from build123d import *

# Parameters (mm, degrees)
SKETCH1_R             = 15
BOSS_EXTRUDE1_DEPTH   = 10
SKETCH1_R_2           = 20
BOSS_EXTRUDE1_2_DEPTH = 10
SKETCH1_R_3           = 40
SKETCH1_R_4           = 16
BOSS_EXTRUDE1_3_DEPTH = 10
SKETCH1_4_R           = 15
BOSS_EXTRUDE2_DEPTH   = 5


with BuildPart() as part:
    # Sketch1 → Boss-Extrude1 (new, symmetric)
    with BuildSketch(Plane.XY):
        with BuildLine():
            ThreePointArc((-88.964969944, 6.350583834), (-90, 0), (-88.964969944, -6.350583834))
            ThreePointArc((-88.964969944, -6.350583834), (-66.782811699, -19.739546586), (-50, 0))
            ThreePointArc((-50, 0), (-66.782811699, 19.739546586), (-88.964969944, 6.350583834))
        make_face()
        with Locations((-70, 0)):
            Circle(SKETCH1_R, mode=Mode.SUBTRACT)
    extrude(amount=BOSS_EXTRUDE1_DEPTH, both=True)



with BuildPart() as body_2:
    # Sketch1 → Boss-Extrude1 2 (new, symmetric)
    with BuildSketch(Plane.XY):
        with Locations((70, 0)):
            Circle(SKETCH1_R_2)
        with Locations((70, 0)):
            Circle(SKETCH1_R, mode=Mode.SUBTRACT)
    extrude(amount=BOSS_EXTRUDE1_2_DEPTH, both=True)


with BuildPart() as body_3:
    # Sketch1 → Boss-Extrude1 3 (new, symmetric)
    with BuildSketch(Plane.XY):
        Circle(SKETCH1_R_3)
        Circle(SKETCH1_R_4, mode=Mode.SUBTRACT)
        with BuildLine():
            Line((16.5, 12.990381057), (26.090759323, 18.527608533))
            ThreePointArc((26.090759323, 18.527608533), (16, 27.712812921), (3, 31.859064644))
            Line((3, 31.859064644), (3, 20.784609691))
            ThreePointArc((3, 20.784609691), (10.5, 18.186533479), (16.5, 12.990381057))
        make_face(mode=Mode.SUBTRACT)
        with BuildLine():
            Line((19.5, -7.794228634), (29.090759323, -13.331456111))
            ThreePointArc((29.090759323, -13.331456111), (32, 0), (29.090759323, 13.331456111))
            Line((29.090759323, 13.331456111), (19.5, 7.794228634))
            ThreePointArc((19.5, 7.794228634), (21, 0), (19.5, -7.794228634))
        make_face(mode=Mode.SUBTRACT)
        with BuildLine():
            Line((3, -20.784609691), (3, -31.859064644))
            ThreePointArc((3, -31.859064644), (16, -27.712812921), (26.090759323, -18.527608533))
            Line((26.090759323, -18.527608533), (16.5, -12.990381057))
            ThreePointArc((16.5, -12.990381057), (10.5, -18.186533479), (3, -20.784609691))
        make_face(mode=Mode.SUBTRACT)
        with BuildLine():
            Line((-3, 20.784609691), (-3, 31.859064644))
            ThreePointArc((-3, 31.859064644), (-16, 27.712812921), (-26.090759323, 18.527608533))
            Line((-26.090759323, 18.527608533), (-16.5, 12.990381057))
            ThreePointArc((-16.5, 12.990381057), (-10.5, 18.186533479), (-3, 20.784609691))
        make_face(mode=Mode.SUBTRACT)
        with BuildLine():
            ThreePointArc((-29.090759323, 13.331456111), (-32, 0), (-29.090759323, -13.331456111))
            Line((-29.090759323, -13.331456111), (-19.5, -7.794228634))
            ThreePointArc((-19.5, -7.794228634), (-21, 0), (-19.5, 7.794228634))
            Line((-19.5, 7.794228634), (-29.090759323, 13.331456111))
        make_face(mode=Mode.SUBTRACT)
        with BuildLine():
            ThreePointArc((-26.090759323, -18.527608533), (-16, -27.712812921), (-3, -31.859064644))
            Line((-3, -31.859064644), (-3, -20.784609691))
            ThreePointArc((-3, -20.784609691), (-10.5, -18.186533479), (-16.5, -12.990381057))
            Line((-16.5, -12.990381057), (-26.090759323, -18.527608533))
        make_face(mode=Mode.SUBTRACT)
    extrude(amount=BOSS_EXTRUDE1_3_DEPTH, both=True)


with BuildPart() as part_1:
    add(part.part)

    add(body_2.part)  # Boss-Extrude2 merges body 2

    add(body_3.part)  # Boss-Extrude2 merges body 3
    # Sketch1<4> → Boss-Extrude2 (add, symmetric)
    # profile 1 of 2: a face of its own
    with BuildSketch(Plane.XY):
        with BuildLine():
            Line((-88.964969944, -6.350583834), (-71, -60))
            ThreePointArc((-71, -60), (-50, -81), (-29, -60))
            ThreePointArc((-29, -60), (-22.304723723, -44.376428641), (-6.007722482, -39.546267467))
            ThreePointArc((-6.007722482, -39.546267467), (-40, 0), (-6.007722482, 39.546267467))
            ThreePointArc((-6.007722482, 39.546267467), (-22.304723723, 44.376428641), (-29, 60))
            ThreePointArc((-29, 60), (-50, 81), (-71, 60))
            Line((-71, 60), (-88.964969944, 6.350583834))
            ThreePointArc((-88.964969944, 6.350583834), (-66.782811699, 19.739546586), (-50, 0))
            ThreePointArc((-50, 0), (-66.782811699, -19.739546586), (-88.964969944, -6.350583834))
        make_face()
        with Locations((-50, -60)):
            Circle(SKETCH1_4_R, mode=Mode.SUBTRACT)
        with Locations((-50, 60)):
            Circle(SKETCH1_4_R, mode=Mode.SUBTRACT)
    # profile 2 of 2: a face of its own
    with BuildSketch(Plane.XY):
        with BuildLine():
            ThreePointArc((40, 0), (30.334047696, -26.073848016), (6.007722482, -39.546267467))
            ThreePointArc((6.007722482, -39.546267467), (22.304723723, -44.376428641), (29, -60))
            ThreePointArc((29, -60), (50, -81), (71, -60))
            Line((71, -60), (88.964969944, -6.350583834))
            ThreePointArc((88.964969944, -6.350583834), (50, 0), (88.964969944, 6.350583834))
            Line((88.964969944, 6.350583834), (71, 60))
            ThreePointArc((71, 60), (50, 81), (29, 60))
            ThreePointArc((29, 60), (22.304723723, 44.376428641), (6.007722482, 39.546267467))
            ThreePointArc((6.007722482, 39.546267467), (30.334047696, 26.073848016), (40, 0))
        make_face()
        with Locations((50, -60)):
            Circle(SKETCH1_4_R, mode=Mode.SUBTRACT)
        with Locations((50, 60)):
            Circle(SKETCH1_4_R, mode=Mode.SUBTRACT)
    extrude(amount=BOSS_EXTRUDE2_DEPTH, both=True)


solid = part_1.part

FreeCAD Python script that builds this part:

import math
import FreeCAD as App
import Part
import Sketcher
Q = App.Units.Quantity

doc = App.newDocument("Part")
params = doc.addObject("Spreadsheet::Sheet", "Params")
for row, (alias, value) in enumerate([
    ("sketch1_diameter", "30 mm"),
    ("sketch1_radius", "20 mm"),
    ("pad1_length", "20 mm"),
    ("sketch2_diameter", "40 mm"),
    ("sketch2_diameter2", "30 mm"),
    ("pad2_length", "20 mm"),
    ("sketch3_diameter", "80 mm"),
    ("sketch3_diameter2", "32 mm"),
    ("sketch3_radius", "32 mm"),
    ("sketch3_radius2", "21 mm"),
    ("pad3_length", "20 mm"),
    ("sketch4_diameter", "30 mm"),
    ("sketch4_radius", "21 mm"),
    ("sketch4_radius2", "20 mm"),
    ("sketch4_radius3", "40 mm"),
    ("pad4_length", "10 mm"),
], start=1):
    params.set(f"A{row}", alias)
    params.set(f"B{row}", "=" + value)
    params.setAlias(f"B{row}", alias)

body = doc.addObject("PartDesign::Body", "Body")

# Sketch on XY plane
sketch1 = body.newObject("Sketcher::SketchObject", "Sketch")
sketch1.AttachmentSupport = (doc.getObject("XY_Plane"), [""])
sketch1.MapMode = "FlatFace"
sketch1.addGeometry(Part.ArcOfCircle(Part.Circle(App.Vector(-70, 0, 0), App.Vector(0, 0, 1), 20), math.radians(161.486434), math.radians(198.513566)), False)
sketch1.addGeometry(Part.ArcOfCircle(Part.Circle(App.Vector(-70, 0, 0), App.Vector(0, 0, 1), 20), math.radians(-161.486433), math.radians(0)), False)
sketch1.addGeometry(Part.ArcOfCircle(Part.Circle(App.Vector(-70, 0, 0), App.Vector(0, 0, 1), 20), math.radians(0), math.radians(161.486433)), False)
sketch1.addGeometry(Part.Circle(App.Vector(-70, 0, 0), App.Vector(0, 0, 1), 15), False)
sketch1.addConstraint(Sketcher.Constraint("Tangent", 0, 2, 1, 1))
sketch1.addConstraint(Sketcher.Constraint("Tangent", 1, 2, 2, 1))
sketch1.addConstraint(Sketcher.Constraint("Tangent", 2, 2, 0, 1))
sketch1.addConstraint(Sketcher.Constraint("Coincident", 3, 3, 0, 3))
sketch1.addConstraint(Sketcher.Constraint("Symmetric", 0, 2, 2, 2, -1))
sketch1.addConstraint(Sketcher.Constraint("PointOnObject", 1, 2, -1))
sketch1.addConstraint(Sketcher.Constraint("Diameter", 3, 30.0))
sketch1.addConstraint(Sketcher.Constraint("Radius", 0, 20.0))
sketch1.addConstraint(Sketcher.Constraint("DistanceX", 0, 3, -1, 1, 70.0))
sketch1.addConstraint(Sketcher.Constraint("DistanceX", 0, 2, -1, 1, 88.96497))
sketch1.setExpression("Constraints[6]", "Params.sketch1_diameter")
sketch1.setExpression("Constraints[7]", "Params.sketch1_radius")
pad1 = body.newObject("PartDesign::Pad", "Pad")
pad1.Profile = sketch1
pad1.setExpression("Length", "Params.pad1_length")
pad1.Midplane = True
body2 = doc.addObject("PartDesign::Body", "Body001")

# Sketch on XY plane
sketch2 = body2.newObject("Sketcher::SketchObject", "Sketch001")
sketch2.AttachmentSupport = (doc.getObject("XY_Plane001"), [""])
sketch2.MapMode = "FlatFace"
sketch2.addGeometry(Part.Circle(App.Vector(70, 0, 0), App.Vector(0, 0, 1), 20), False)
sketch2.addGeometry(Part.Circle(App.Vector(70, 0, 0), App.Vector(0, 0, 1), 15), False)
sketch2.addConstraint(Sketcher.Constraint("Coincident", 1, 3, 0, 3))
sketch2.addConstraint(Sketcher.Constraint("PointOnObject", 0, 3, -1))
sketch2.addConstraint(Sketcher.Constraint("Diameter", 0, 40.0))
sketch2.addConstraint(Sketcher.Constraint("Diameter", 1, 30.0))
sketch2.addConstraint(Sketcher.Constraint("DistanceX", -1, 1, 0, 3, 70.0))
sketch2.setExpression("Constraints[2]", "Params.sketch2_diameter")
sketch2.setExpression("Constraints[3]", "Params.sketch2_diameter2")
pad2 = body2.newObject("PartDesign::Pad", "Pad001")
pad2.Profile = sketch2
pad2.setExpression("Length", "Params.pad2_length")
pad2.Midplane = True
body3 = doc.addObject("PartDesign::Body", "Body002")

# Sketch on XY plane
sketch3 = body3.newObject("Sketcher::SketchObject", "Sketch002")
sketch3.AttachmentSupport = (doc.getObject("XY_Plane002"), [""])
sketch3.MapMode = "FlatFace"
sketch3.addGeometry(Part.Circle(App.Vector(0, 0, 0), App.Vector(0, 0, 1), 40), False)
sketch3.addGeometry(Part.ArcOfCircle(Part.Circle(App.Vector(0, 0, 0), App.Vector(0, 0, 1), 32), math.radians(-144.620621), math.radians(-95.379379)), False)
sketch3.addGeometry(Part.LineSegment(App.Vector(-26.090759, -18.527609, 0), App.Vector(-16.5, -12.990381, 0)), False)
sketch3.addGeometry(Part.ArcOfCircle(Part.Circle(App.Vector(0, 0, 0), App.Vector(0, 0, 1), 21), math.radians(-141.786789), math.radians(-98.213211)), False)
sketch3.addGeometry(Part.LineSegment(App.Vector(-3, -20.78461, 0), App.Vector(-3, -31.859065, 0)), False)
sketch3.addGeometry(Part.LineSegment(App.Vector(3, -31.859065, 0), App.Vector(3, -20.78461, 0)), False)
sketch3.addGeometry(Part.ArcOfCircle(Part.Circle(App.Vector(0, 0, 0), App.Vector(0, 0, 1), 21), math.radians(-81.786789), math.radians(-38.213211)), False)
sketch3.addGeometry(Part.LineSegment(App.Vector(16.5, -12.990381, 0), App.Vector(26.090759, -18.527609, 0)), False)
sketch3.addGeometry(Part.ArcOfCircle(Part.Circle(App.Vector(0, 0, 0), App.Vector(0, 0, 1), 32), math.radians(-84.620621), math.radians(-35.379379)), False)
sketch3.addGeometry(Part.ArcOfCircle(Part.Circle(App.Vector(0, 0, 0), App.Vector(0, 0, 1), 32), math.radians(155.379379), math.radians(204.620621)), False)
sketch3.addGeometry(Part.LineSegment(App.Vector(-29.090759, 13.331456, 0), App.Vector(-19.5, 7.794229, 0)), False)
sketch3.addGeometry(Part.ArcOfCircle(Part.Circle(App.Vector(0, 0, 0), App.Vector(0, 0, 1), 21), math.radians(158.213211), math.radians(201.786789)), False)
sketch3.addGeometry(Part.LineSegment(App.Vector(-19.5, -7.794229, 0), App.Vector(-29.090759, -13.331456, 0)), False)
sketch3.addGeometry(Part.LineSegment(App.Vector(-3, 31.859065, 0), App.Vector(-3, 20.78461, 0)), False)
sketch3.addGeometry(Part.ArcOfCircle(Part.Circle(App.Vector(0, 0, 0), App.Vector(0, 0, 1), 21), math.radians(98.213211), math.radians(141.786789)), False)
sketch3.addGeometry(Part.LineSegment(App.Vector(-16.5, 12.990381, 0), App.Vector(-26.090759, 18.527609, 0)), False)
sketch3.addGeometry(Part.ArcOfCircle(Part.Circle(App.Vector(0, 0, 0), App.Vector(0, 0, 1), 32), math.radians(95.379379), math.radians(144.620621)), False)
sketch3.addGeometry(Part.Circle(App.Vector(0, 0, 0), App.Vector(0, 0, 1), 16), False)
sketch3.addGeometry(Part.LineSegment(App.Vector(29.090759, -13.331456, 0), App.Vector(19.5, -7.794229, 0)), False)
sketch3.addGeometry(Part.ArcOfCircle(Part.Circle(App.Vector(0, 0, 0), App.Vector(0, 0, 1), 21), math.radians(-21.786789), math.radians(21.786789)), False)
sketch3.addGeometry(Part.LineSegment(App.Vector(19.5, 7.794229, 0), App.Vector(29.090759, 13.331456, 0)), False)
sketch3.addGeometry(Part.ArcOfCircle(Part.Circle(App.Vector(0, 0, 0), App.Vector(0, 0, 1), 32), math.radians(-24.620621), math.radians(24.620621)), False)
sketch3.addGeometry(Part.LineSegment(App.Vector(26.090759, 18.527609, 0), App.Vector(16.5, 12.990381, 0)), False)
sketch3.addGeometry(Part.ArcOfCircle(Part.Circle(App.Vector(0, 0, 0), App.Vector(0, 0, 1), 21), math.radians(38.213211), math.radians(81.786789)), False)
sketch3.addGeometry(Part.LineSegment(App.Vector(3, 20.78461, 0), App.Vector(3, 31.859065, 0)), False)
sketch3.addGeometry(Part.ArcOfCircle(Part.Circle(App.Vector(0, 0, 0), App.Vector(0, 0, 1), 32), math.radians(35.379379), math.radians(84.620621)), False)
sketch3.addConstraint(Sketcher.Constraint("Coincident", 1, 1, 2, 1))
sketch3.addConstraint(Sketcher.Constraint("Coincident", 2, 2, 3, 1))
sketch3.addConstraint(Sketcher.Constraint("Coincident", 3, 2, 4, 1))
sketch3.addConstraint(Sketcher.Constraint("Coincident", 4, 2, 1, 2))
sketch3.addConstraint(Sketcher.Constraint("Coincident", 5, 2, 6, 1))
sketch3.addConstraint(Sketcher.Constraint("Coincident", 6, 2, 7, 1))
sketch3.addConstraint(Sketcher.Constraint("Coincident", 7, 2, 8, 2))
sketch3.addConstraint(Sketcher.Constraint("Coincident", 8, 1, 5, 1))
sketch3.addConstraint(Sketcher.Constraint("Coincident", 9, 1, 10, 1))
sketch3.addConstraint(Sketcher.Constraint("Coincident", 10, 2, 11, 1))
sketch3.addConstraint(Sketcher.Constraint("Coincident", 11, 2, 12, 1))
sketch3.addConstraint(Sketcher.Constraint("Coincident", 12, 2, 9, 2))
sketch3.addConstraint(Sketcher.Constraint("Coincident", 13, 2, 14, 1))
sketch3.addConstraint(Sketcher.Constraint("Coincident", 14, 2, 15, 1))
sketch3.addConstraint(Sketcher.Constraint("Coincident", 15, 2, 16, 2))
sketch3.addConstraint(Sketcher.Constraint("Coincident", 16, 1, 13, 1))
sketch3.addConstraint(Sketcher.Constraint("Coincident", 18, 2, 19, 1))
sketch3.addConstraint(Sketcher.Constraint("Coincident", 19, 2, 20, 1))
sketch3.addConstraint(Sketcher.Constraint("Coincident", 20, 2, 21, 2))
sketch3.addConstraint(Sketcher.Constraint("Coincident", 21, 1, 18, 1))
sketch3.addConstraint(Sketcher.Constraint("Coincident", 22, 2, 23, 1))
sketch3.addConstraint(Sketcher.Constraint("Coincident", 23, 2, 24, 1))
sketch3.addConstraint(Sketcher.Constraint("Coincident", 24, 2, 25, 2))
sketch3.addConstraint(Sketcher.Constraint("Coincident", 25, 1, 22, 1))
sketch3.addConstraint(Sketcher.Constraint("Vertical", 4))
sketch3.addConstraint(Sketcher.Constraint("Vertical", 5))
sketch3.addConstraint(Sketcher.Constraint("Vertical", 13))
sketch3.addConstraint(Sketcher.Constraint("Vertical", 24))
sketch3.addConstraint(Sketcher.Constraint("Coincident", 0, 3, -1, 1))
sketch3.addConstraint(Sketcher.Constraint("Coincident", 1, 3, -1, 1))
sketch3.addConstraint(Sketcher.Constraint("Coincident", 3, 3, -1, 1))
sketch3.addConstraint(Sketcher.Constraint("Coincident", 6, 3, -1, 1))
sketch3.addConstraint(Sketcher.Constraint("Coincident", 8, 3, -1, 1))
sketch3.addConstraint(Sketcher.Constraint("Coincident", 9, 3, -1, 1))
sketch3.addConstraint(Sketcher.Constraint("Coincident", 11, 3, -1, 1))
sketch3.addConstraint(Sketcher.Constraint("Coincident", 14, 3, -1, 1))
sketch3.addConstraint(Sketcher.Constraint("Coincident", 16, 3, -1, 1))
sketch3.addConstraint(Sketcher.Constraint("Coincident", 17, 3, -1, 1))
sketch3.addConstraint(Sketcher.Constraint("Coincident", 19, 3, -1, 1))
sketch3.addConstraint(Sketcher.Constraint("Coincident", 21, 3, -1, 1))
sketch3.addConstraint(Sketcher.Constraint("Coincident", 23, 3, -1, 1))
sketch3.addConstraint(Sketcher.Constraint("Coincident", 25, 3, -1, 1))
sketch3.addConstraint(Sketcher.Constraint("Equal", 3, 6))
sketch3.addConstraint(Sketcher.Constraint("Equal", 1, 8))
sketch3.addConstraint(Sketcher.Constraint("Equal", 8, 9))
sketch3.addConstraint(Sketcher.Constraint("Equal", 6, 11))
sketch3.addConstraint(Sketcher.Constraint("Equal", 11, 14))
sketch3.addConstraint(Sketcher.Constraint("Equal", 9, 16))
sketch3.addConstraint(Sketcher.Constraint("Equal", 14, 19))
sketch3.addConstraint(Sketcher.Constraint("Equal", 16, 21))
sketch3.addConstraint(Sketcher.Constraint("Equal", 19, 23))
sketch3.addConstraint(Sketcher.Constraint("Equal", 21, 25))
sketch3.addConstraint(Sketcher.Constraint("Parallel", 7, 10))
sketch3.addConstraint(Sketcher.Constraint("Parallel", 2, 12))
sketch3.addConstraint(Sketcher.Constraint("Parallel", 10, 15))
sketch3.addConstraint(Sketcher.Constraint("Parallel", 15, 18))
sketch3.addConstraint(Sketcher.Constraint("Parallel", 12, 20))
sketch3.addConstraint(Sketcher.Constraint("Parallel", 20, 22))
sketch3.addConstraint(Sketcher.Constraint("Horizontal", 3, 2, 5, 2))
sketch3.addConstraint(Sketcher.Constraint("Horizontal", 2, 2, 6, 2))
sketch3.addConstraint(Sketcher.Constraint("Horizontal", 1, 1, 7, 2))
sketch3.addConstraint(Sketcher.Constraint("Horizontal", 11, 2, 18, 2))
sketch3.addConstraint(Sketcher.Constraint("Horizontal", 10, 2, 19, 2))
sketch3.addConstraint(Sketcher.Constraint("Horizontal", 14, 2, 22, 2))
sketch3.addConstraint(Sketcher.Constraint("Horizontal", 13, 2, 23, 2))
sketch3.addConstraint(Sketcher.Constraint("Vertical", 10, 2, 11, 2))
sketch3.addConstraint(Sketcher.Constraint("Vertical", 4, 2, 13, 2))
sketch3.addConstraint(Sketcher.Constraint("Vertical", 2, 2, 14, 2))
sketch3.addConstraint(Sketcher.Constraint("Equal", 7, 10))
sketch3.addConstraint(Sketcher.Constraint("Diameter", 0, 80.0))
sketch3.addConstraint(Sketcher.Constraint("Diameter", 17, 32.0))
sketch3.addConstraint(Sketcher.Constraint("Radius", 1, 32.0))
sketch3.addConstraint(Sketcher.Constraint("Radius", 3, 21.0))
sketch3.addConstraint(Sketcher.Constraint("Angle", 2, Q("30 deg")))
sketch3.addConstraint(Sketcher.Constraint("DistanceX", 3, 2, -1, 1, 3.0))
sketch3.addConstraint(Sketcher.Constraint("DistanceX", 9, 1, 1, 1, 3.0))
sketch3.setExpression("Constraints[69]", "Params.sketch3_diameter")
sketch3.setExpression("Constraints[70]", "Params.sketch3_diameter2")
sketch3.setExpression("Constraints[71]", "Params.sketch3_radius")
sketch3.setExpression("Constraints[72]", "Params.sketch3_radius2")
pad3 = body3.newObject("PartDesign::Pad", "Pad002")
pad3.Profile = sketch3
pad3.setExpression("Length", "Params.pad3_length")
pad3.Midplane = True
body.AllowCompound = True
doc.recompute()

boolean = body.newObject("PartDesign::Boolean", "Boolean")
boolean.Type = "Fuse"
boolean.addObjects([body2])
doc.recompute()

boolean2 = body.newObject("PartDesign::Boolean", "Boolean001")
boolean2.Type = "Fuse"
boolean2.addObjects([body3])

# Sketch on XY plane
sketch4 = body.newObject("Sketcher::SketchObject", "Sketch003")
sketch4.AttachmentSupport = (doc.getObject("XY_Plane"), [""])
sketch4.MapMode = "FlatFace"
sketch4.addGeometry(Part.LineSegment(App.Vector(-88.96497, -6.350584, 0), App.Vector(-71, -60, 0)), False)
sketch4.addGeometry(Part.ArcOfCircle(Part.Circle(App.Vector(-50, -60, 0), App.Vector(0, 0, 1), 21), math.radians(180), math.radians(360)), False)
sketch4.addGeometry(Part.ArcOfCircle(Part.Circle(App.Vector(-9.011584, -59.319401, 0), App.Vector(0, 0, 1), 20), math.radians(81.361885), math.radians(181.950148)), False)
sketch4.addGeometry(Part.ArcOfCircle(Part.Circle(App.Vector(0, 0, 0), App.Vector(0, 0, 1), 40), math.radians(98.638115), math.radians(261.361885)), False)
sketch4.addGeometry(Part.ArcOfCircle(Part.Circle(App.Vector(-9.011584, 59.319401, 0), App.Vector(0, 0, 1), 20), math.radians(178.049852), math.radians(278.638115)), False)
sketch4.addGeometry(Part.ArcOfCircle(Part.Circle(App.Vector(-50, 60, 0), App.Vector(0, 0, 1), 21), math.radians(0), math.radians(180)), False)
sketch4.addGeometry(Part.LineSegment(App.Vector(-71, 60, 0), App.Vector(-88.96497, 6.350584, 0)), False)
sketch4.addGeometry(Part.ArcOfCircle(Part.Circle(App.Vector(-70, 0, 0), App.Vector(0, 0, 1), 20), math.radians(0), math.radians(161.486433)), False)
sketch4.addGeometry(Part.ArcOfCircle(Part.Circle(App.Vector(-70, 0, 0), App.Vector(0, 0, 1), 20), math.radians(-161.486433), math.radians(0)), False)
sketch4.addGeometry(Part.Circle(App.Vector(-50, -60, 0), App.Vector(0, 0, 1), 15), False)
sketch4.addGeometry(Part.Circle(App.Vector(-50, 60, 0), App.Vector(0, 0, 1), 15), False)
sketch4.addGeometry(Part.ArcOfCircle(Part.Circle(App.Vector(0, 0, 0), App.Vector(0, 0, 1), 40), math.radians(-81.361885), math.radians(0)), False)
sketch4.addGeometry(Part.ArcOfCircle(Part.Circle(App.Vector(9.011584, -59.319401, 0), App.Vector(0, 0, 1), 20), math.radians(-1.950148), math.radians(98.638115)), False)
sketch4.addGeometry(Part.ArcOfCircle(Part.Circle(App.Vector(50, -60, 0), App.Vector(0, 0, 1), 21), math.radians(180), math.radians(360)), False)
sketch4.addGeometry(Part.LineSegment(App.Vector(71, -60, 0), App.Vector(88.96497, -6.350584, 0)), False)
sketch4.addGeometry(Part.ArcOfCircle(Part.Circle(App.Vector(70, 0, 0), App.Vector(0, 0, 1), 20), math.radians(18.513567), math.radians(341.486433)), False)
sketch4.addGeometry(Part.LineSegment(App.Vector(88.96497, 6.350584, 0), App.Vector(71, 60, 0)), False)
sketch4.addGeometry(Part.ArcOfCircle(Part.Circle(App.Vector(50, 60, 0), App.Vector(0, 0, 1), 21), math.radians(0), math.radians(180)), False)
sketch4.addGeometry(Part.ArcOfCircle(Part.Circle(App.Vector(9.011584, 59.319401, 0), App.Vector(0, 0, 1), 20), math.radians(-98.638115), math.radians(1.950148)), False)
sketch4.addGeometry(Part.ArcOfCircle(Part.Circle(App.Vector(0, 0, 0), App.Vector(0, 0, 1), 40), math.radians(0), math.radians(81.361885)), False)
sketch4.addGeometry(Part.Circle(App.Vector(50, -60, 0), App.Vector(0, 0, 1), 15), False)
sketch4.addGeometry(Part.Circle(App.Vector(50, 60, 0), App.Vector(0, 0, 1), 15), False)
sketch4.addConstraint(Sketcher.Constraint("Coincident", 0, 2, 1, 1))
sketch4.addConstraint(Sketcher.Constraint("Coincident", 1, 2, 2, 2))
sketch4.addConstraint(Sketcher.Constraint("Tangent", 2, 1, 3, 2))
sketch4.addConstraint(Sketcher.Constraint("Tangent", 3, 1, 4, 2))
sketch4.addConstraint(Sketcher.Constraint("Coincident", 4, 1, 5, 1))
sketch4.addConstraint(Sketcher.Constraint("Coincident", 5, 2, 6, 1))
sketch4.addConstraint(Sketcher.Constraint("Tangent", 6, 2, 7, 2))
sketch4.addConstraint(Sketcher.Constraint("Tangent", 7, 1, 8, 2))
sketch4.addConstraint(Sketcher.Constraint("Tangent", 8, 1, 0, 1))
sketch4.addConstraint(Sketcher.Constraint("Tangent", 11, 1, 12, 2))
sketch4.addConstraint(Sketcher.Constraint("Coincident", 12, 1, 13, 1))
sketch4.addConstraint(Sketcher.Constraint("Coincident", 13, 2, 14, 1))
sketch4.addConstraint(Sketcher.Constraint("Tangent", 14, 2, 15, 2))
sketch4.addConstraint(Sketcher.Constraint("Tangent", 15, 1, 16, 1))
sketch4.addConstraint(Sketcher.Constraint("Coincident", 16, 2, 17, 1))
sketch4.addConstraint(Sketcher.Constraint("Coincident", 17, 2, 18, 2))
sketch4.addConstraint(Sketcher.Constraint("Tangent", 18, 1, 19, 2))
sketch4.addConstraint(Sketcher.Constraint("Tangent", 19, 1, 11, 2))
sketch4.addConstraint(Sketcher.Constraint("Coincident", 3, 3, -1, 1))
sketch4.addConstraint(Sketcher.Constraint("Coincident", 11, 3, -1, 1))
sketch4.addConstraint(Sketcher.Constraint("Coincident", 9, 3, 1, 3))
sketch4.addConstraint(Sketcher.Constraint("Coincident", 10, 3, 5, 3))
sketch4.addConstraint(Sketcher.Constraint("Coincident", 20, 3, 13, 3))
sketch4.addConstraint(Sketcher.Constraint("Coincident", 21, 3, 17, 3))
sketch4.addConstraint(Sketcher.Constraint("Equal", 2, 4))
sketch4.addConstraint(Sketcher.Constraint("Equal", 1, 5))
sketch4.addConstraint(Sketcher.Constraint("Equal", 4, 7))
sketch4.addConstraint(Sketcher.Constraint("Equal", 7, 8))
sketch4.addConstraint(Sketcher.Constraint("Equal", 9, 10))
sketch4.addConstraint(Sketcher.Constraint("Equal", 3, 11))
sketch4.addConstraint(Sketcher.Constraint("Equal", 8, 12))
sketch4.addConstraint(Sketcher.Constraint("Equal", 5, 13))
sketch4.addConstraint(Sketcher.Constraint("Equal", 12, 15))
sketch4.addConstraint(Sketcher.Constraint("Equal", 13, 17))
sketch4.addConstraint(Sketcher.Constraint("Equal", 15, 18))
sketch4.addConstraint(Sketcher.Constraint("Equal", 11, 19))
sketch4.addConstraint(Sketcher.Constraint("Equal", 10, 20))
sketch4.addConstraint(Sketcher.Constraint("Equal", 20, 21))
sketch4.addConstraint(Sketcher.Constraint("Symmetric", 5, 3, 13, 3, -1, 1))
sketch4.addConstraint(Sketcher.Constraint("Symmetric", 7, 3, 15, 3, -1, 1))
sketch4.addConstraint(Sketcher.Constraint("Symmetric", 1, 3, 17, 3, -1, 1))
sketch4.addConstraint(Sketcher.Constraint("Symmetric", 1, 3, 13, 3, -2))
sketch4.addConstraint(Sketcher.Constraint("Symmetric", 8, 1, 14, 2, -2))
sketch4.addConstraint(Sketcher.Constraint("PointOnObject", 7, 1, -1))
sketch4.addConstraint(Sketcher.Constraint("PointOnObject", 19, 1, -1))
sketch4.addConstraint(Sketcher.Constraint("Parallel", 6, 14))
sketch4.addConstraint(Sketcher.Constraint("Parallel", 0, 16))
sketch4.addConstraint(Sketcher.Constraint("Horizontal", 2, 3, 12, 3))
sketch4.addConstraint(Sketcher.Constraint("Horizontal", 4, 3, 18, 3))
sketch4.addConstraint(Sketcher.Constraint("Horizontal", 20, 3, 0, 2))
sketch4.addConstraint(Sketcher.Constraint("Horizontal", 0, 2, 1, 2))
sketch4.addConstraint(Sketcher.Constraint("Horizontal", 21, 3, 4, 1))
sketch4.addConstraint(Sketcher.Constraint("Vertical", 10, 3, 7, 1))
sketch4.addConstraint(Sketcher.Constraint("Diameter", 9, 30.0))
sketch4.addConstraint(Sketcher.Constraint("Radius", 1, 21.0))
sketch4.addConstraint(Sketcher.Constraint("Radius", 2, 20.0))
sketch4.addConstraint(Sketcher.Constraint("Radius", 3, 40.0))
sketch4.addConstraint(Sketcher.Constraint("DistanceX", 1, 3, -1, 1, 50.0))
sketch4.addConstraint(Sketcher.Constraint("DistanceY", 1, 3, -1, 1, 60.0))
sketch4.setExpression("Constraints[53]", "Params.sketch4_diameter")
sketch4.setExpression("Constraints[54]", "Params.sketch4_radius")
sketch4.setExpression("Constraints[55]", "Params.sketch4_radius2")
sketch4.setExpression("Constraints[56]", "Params.sketch4_radius3")
pad4 = body.newObject("PartDesign::Pad", "Pad003")
pad4.Profile = sketch4
pad4.setExpression("Length", "Params.pad4_length")
pad4.Midplane = True

doc.recompute()
